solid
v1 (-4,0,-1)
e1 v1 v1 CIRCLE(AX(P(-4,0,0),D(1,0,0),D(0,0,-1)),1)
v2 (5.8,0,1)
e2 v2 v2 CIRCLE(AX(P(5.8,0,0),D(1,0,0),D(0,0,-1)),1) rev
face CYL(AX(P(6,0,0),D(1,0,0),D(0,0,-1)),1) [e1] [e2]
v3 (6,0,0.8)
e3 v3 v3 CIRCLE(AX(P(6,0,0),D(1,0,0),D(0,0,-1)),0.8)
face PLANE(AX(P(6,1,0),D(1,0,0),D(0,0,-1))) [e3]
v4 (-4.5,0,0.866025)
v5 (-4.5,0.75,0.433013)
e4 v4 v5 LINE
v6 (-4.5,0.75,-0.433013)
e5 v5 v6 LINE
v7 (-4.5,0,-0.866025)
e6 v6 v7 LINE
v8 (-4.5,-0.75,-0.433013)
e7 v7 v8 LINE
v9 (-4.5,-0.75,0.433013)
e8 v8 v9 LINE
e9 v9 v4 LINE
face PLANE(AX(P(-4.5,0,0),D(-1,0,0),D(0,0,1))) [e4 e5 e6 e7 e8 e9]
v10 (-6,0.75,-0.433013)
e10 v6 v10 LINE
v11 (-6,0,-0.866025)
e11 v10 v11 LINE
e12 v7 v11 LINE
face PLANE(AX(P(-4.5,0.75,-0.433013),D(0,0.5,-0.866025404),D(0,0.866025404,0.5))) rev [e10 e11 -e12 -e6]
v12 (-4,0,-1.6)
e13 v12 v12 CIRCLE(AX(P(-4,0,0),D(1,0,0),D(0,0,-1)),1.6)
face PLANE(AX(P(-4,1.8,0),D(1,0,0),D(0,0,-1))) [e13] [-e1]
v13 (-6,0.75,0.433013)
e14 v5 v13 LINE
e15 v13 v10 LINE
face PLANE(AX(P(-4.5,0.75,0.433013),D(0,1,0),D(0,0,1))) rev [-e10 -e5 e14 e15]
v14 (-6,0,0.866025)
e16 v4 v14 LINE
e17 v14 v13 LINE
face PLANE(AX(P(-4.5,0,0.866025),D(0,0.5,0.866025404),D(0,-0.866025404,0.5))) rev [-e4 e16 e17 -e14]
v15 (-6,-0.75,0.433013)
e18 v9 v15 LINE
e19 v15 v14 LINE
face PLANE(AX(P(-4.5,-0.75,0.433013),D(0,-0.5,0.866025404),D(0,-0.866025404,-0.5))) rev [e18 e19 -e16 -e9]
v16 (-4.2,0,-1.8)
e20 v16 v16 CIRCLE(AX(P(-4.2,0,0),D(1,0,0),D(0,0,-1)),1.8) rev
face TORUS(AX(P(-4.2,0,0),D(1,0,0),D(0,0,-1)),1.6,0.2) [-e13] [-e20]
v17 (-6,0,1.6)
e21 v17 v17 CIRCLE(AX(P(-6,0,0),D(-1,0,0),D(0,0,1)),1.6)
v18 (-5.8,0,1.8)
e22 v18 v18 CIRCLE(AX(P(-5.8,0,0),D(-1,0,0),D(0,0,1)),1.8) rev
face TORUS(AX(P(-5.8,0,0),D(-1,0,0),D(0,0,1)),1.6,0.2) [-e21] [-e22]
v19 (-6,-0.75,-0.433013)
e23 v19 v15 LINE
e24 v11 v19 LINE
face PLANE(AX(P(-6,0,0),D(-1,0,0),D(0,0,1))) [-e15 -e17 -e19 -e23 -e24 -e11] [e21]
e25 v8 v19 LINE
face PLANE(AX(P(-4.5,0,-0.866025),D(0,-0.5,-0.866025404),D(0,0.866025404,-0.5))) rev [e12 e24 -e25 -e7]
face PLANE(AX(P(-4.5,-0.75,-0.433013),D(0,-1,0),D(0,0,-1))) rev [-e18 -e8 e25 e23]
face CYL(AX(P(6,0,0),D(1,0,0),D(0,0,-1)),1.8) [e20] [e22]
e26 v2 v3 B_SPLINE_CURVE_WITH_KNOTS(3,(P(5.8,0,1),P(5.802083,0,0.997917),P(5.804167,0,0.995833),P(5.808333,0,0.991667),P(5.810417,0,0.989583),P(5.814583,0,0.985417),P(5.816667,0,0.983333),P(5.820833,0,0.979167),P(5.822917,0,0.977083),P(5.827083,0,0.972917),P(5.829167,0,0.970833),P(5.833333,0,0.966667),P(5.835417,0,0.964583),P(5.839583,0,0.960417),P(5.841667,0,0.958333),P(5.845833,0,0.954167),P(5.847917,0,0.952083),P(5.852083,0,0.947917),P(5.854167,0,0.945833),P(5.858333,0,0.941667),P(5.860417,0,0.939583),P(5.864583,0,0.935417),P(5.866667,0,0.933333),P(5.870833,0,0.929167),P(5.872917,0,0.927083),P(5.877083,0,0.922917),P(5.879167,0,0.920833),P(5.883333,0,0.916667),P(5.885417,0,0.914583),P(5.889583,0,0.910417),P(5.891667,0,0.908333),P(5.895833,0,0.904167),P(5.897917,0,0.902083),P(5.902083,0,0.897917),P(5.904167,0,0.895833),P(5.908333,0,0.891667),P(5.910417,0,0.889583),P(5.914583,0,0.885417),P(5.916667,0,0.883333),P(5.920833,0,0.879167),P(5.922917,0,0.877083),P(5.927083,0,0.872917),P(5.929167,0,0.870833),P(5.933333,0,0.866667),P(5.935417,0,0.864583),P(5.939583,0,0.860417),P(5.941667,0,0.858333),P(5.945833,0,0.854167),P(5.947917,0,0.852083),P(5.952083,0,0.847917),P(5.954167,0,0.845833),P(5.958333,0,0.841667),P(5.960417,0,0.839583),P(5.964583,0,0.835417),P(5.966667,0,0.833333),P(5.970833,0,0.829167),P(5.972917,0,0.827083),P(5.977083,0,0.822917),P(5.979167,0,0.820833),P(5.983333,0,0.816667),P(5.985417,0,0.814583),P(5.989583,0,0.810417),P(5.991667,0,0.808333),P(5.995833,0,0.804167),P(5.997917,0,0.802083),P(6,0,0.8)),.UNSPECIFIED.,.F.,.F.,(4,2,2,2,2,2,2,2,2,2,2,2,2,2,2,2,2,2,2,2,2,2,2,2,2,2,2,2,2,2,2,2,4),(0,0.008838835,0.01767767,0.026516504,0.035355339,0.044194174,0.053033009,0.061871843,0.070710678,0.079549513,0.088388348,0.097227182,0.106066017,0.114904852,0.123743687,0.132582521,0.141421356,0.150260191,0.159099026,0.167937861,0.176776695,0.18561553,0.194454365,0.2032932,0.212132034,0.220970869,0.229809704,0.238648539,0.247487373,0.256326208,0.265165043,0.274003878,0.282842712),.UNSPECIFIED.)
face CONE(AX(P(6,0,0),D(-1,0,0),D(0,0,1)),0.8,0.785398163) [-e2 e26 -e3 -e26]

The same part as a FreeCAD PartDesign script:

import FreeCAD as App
import Part
import Sketcher
Q = App.Units.Quantity


def edges_at(feature, points):
    """Names of the edges that pass closest to the given points."""
    edges = feature.Shape.Edges
    near = lambda p: min(range(len(edges)), key=lambda i: edges[i].distToShape(Part.Vertex(*p))[0])
    return sorted({f"Edge{near(p) + 1}" for p in points})

doc = App.newDocument("Part")
body = doc.addObject("PartDesign::Body", "Body")

sketch1 = body.newObject("Sketcher::SketchObject", "Sketch")
sketch1.AttachmentSupport = (doc.getObject("XY_Plane"), [""])
sketch1.MapMode = "FlatFace"
sketch1.addGeometry([
    Part.LineSegment(App.Vector(-6, 1.8, 0), App.Vector(-6, 0, 0)),
    Part.LineSegment(App.Vector(-6, 0, 0), App.Vector(6, 0, 0)),
    Part.LineSegment(App.Vector(6, 0, 0), App.Vector(6, 1, 0)),
    Part.LineSegment(App.Vector(6, 1, 0), App.Vector(-4, 1, 0)),
    Part.LineSegment(App.Vector(-4, 1, 0), App.Vector(-4, 1.8, 0)),
    Part.LineSegment(App.Vector(-4, 1.8, 0), App.Vector(-6, 1.8, 0)),
], False)
sketch1.addConstraint([
    Sketcher.Constraint("Coincident", 0, 2, 1, 1),
    Sketcher.Constraint("Coincident", 1, 2, 2, 1),
    Sketcher.Constraint("Coincident", 2, 2, 3, 1),
    Sketcher.Constraint("Coincident", 3, 2, 4, 1),
    Sketcher.Constraint("Coincident", 4, 2, 5, 1),
    Sketcher.Constraint("Coincident", 5, 2, 0, 1),
    Sketcher.Constraint("Vertical", 0),
    Sketcher.Constraint("Horizontal", 1),
    Sketcher.Constraint("Vertical", 2),
    Sketcher.Constraint("Horizontal", 3),
    Sketcher.Constraint("Vertical", 4),
    Sketcher.Constraint("Horizontal", 5),
    Sketcher.Constraint("Symmetric", 0, 2, 1, 2, -1, 1),
    Sketcher.Constraint("DistanceX", 1, 1, 1, 2, Q("12 mm")),
    Sketcher.Constraint("DistanceX", 3, 2, 3, 1, Q("10 mm")),
    Sketcher.Constraint("DistanceY", 2, 1, 2, 2, Q("1 mm")),
    Sketcher.Constraint("DistanceY", 0, 2, 0, 1, Q("1.8 mm")),
])
revolution = body.newObject("PartDesign::Revolution", "Revolution")
revolution.Profile = sketch1
revolution.ReferenceAxis = (sketch1, ["H_Axis"])
revolution.Angle = 360

sketch2 = body.newObject("Sketcher::SketchObject", "Sketch001")
sketch2.AttachmentSupport = (doc.getObject("YZ_Plane"), [""])
sketch2.MapMode = "FlatFace"
sketch2.AttachmentOffset = App.Placement(App.Vector(0, 0, -6), App.Rotation())
sketch2.addGeometry([
    Part.LineSegment(App.Vector(0, 0.9, 0), App.Vector(0.8, 0.4, 0)),
    Part.LineSegment(App.Vector(0.8, 0.4, 0), App.Vector(0.8, -0.4, 0)),
    Part.LineSegment(App.Vector(0.8, -0.4, 0), App.Vector(0, -0.9, 0)),
    Part.LineSegment(App.Vector(0, -0.9, 0), App.Vector(-0.8, -0.4, 0)),
    Part.LineSegment(App.Vector(-0.8, -0.4, 0), App.Vector(-0.8, 0.4, 0)),
    Part.LineSegment(App.Vector(-0.8, 0.4, 0), App.Vector(0, 0.9, 0)),
], False)
sketch2.addConstraint([
    Sketcher.Constraint("Coincident", 0, 2, 1, 1),
    Sketcher.Constraint("Coincident", 1, 2, 2, 1),
    Sketcher.Constraint("Coincident", 2, 2, 3, 1),
    Sketcher.Constraint("Coincident", 3, 2, 4, 1),
    Sketcher.Constraint("Coincident", 4, 2, 5, 1),
    Sketcher.Constraint("Coincident", 5, 2, 0, 1),
    Sketcher.Constraint("Vertical", 1),
    Sketcher.Constraint("Vertical", 4),
    Sketcher.Constraint("Symmetric", 0, 2, 3, 2, -1, 1),
    Sketcher.Constraint("Symmetric", 2, 2, 5, 2, -1, 1),
    Sketcher.Constraint("PointOnObject", 2, 2, -2),
    Sketcher.Constraint("Parallel", 2, 5),
    Sketcher.Constraint("Horizontal", 1, 2, 3, 2),
    Sketcher.Constraint("Angle", 0, Q("-30 deg")),
    Sketcher.Constraint("DistanceX", 3, 2, 1, 2, Q("1.5 mm")),
    Sketcher.Constraint("DistanceY", 1, 2, 1, 1, Q("0.866025 mm")),
])
pocket1 = body.newObject("PartDesign::Pocket", "Pocket")
pocket1.Profile = sketch2
pocket1.Length = 1.5
pocket1.Reversed = True
doc.recompute()

fillet = body.newObject("PartDesign::Fillet", "Fillet")
fillet.Base = (pocket1, edges_at(pocket1, [(-4, 0, 1.8), (-6, 0, 1.8)]))
fillet.Radius = 0.2
doc.recompute()

chamfer = body.newObject("PartDesign::Chamfer", "Chamfer")
chamfer.Base = (fillet, edges_at(fillet, [(6, 0, 1)]))
chamfer.Size = 0.2

doc.recompute()
